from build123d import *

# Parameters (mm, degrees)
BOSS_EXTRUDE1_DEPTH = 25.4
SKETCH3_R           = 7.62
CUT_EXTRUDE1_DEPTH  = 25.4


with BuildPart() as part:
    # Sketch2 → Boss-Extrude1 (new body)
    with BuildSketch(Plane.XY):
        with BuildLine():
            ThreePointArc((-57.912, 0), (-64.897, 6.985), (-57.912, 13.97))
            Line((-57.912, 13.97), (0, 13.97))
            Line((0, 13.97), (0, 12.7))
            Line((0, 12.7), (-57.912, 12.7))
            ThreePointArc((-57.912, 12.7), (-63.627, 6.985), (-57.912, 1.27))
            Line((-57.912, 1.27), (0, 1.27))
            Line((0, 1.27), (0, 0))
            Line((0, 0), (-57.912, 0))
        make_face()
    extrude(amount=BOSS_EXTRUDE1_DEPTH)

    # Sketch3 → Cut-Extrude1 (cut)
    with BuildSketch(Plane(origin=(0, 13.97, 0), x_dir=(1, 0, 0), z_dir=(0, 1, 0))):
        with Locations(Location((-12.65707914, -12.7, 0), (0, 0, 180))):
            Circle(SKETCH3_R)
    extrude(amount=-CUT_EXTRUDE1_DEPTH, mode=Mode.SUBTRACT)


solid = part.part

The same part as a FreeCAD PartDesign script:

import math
import FreeCAD as App
import Part
import Sketcher

V = App.Vector
Q = App.Units.Quantity

doc = App.newDocument("Part")
params = doc.addObject("Spreadsheet::Sheet", "Params")
for row, (alias, value) in enumerate([
    ("sketch1_radius", "0.275 in"),
    ("sketch1_radius2", "0.225 in"),
    ("sketch1_width", "2.28 in"),
    ("pad1_length", "1 in"),
    ("sketch2_diameter", "0.6 in"),
    ("pocket1_length", "1 in"),
], start=1):
    params.set(f"A{row}", alias)
    params.set(f"B{row}", "=" + value)
    params.setAlias(f"B{row}", alias)

body = doc.addObject("PartDesign::Body", "Body")

sketch1 = body.newObject("Sketcher::SketchObject", "Sketch")
sketch1.AttachmentSupport = (doc.getObject("XY_Plane"), [""])
sketch1.MapMode = "FlatFace"
sketch1.addGeometry([
    Part.ArcOfCircle(Part.Circle(V(-57.9, 7, 0), V(0, 0, 1), 7), math.radians(90), math.radians(270)),
    Part.LineSegment(V(-57.9, 0, 0), V(0, 0, 0)),
    Part.LineSegment(V(0, 0, 0), V(0, 1.3, 0)),
    Part.LineSegment(V(0, 1.3, 0), V(-57.9, 1.3, 0)),
    Part.ArcOfCircle(Part.Circle(V(-57.9, 7, 0), V(0, 0, 1), 5.7), math.radians(90), math.radians(270)),
    Part.LineSegment(V(-57.9, 12.7, 0), V(0, 12.7, 0)),
    Part.LineSegment(V(0, 12.7, 0), V(0, 14, 0)),
    Part.LineSegment(V(0, 14, 0), V(-57.9, 14, 0)),
], False)
sketch1.addConstraint([
    Sketcher.Constraint("Tangent", 0, 2, 1, 1),
    Sketcher.Constraint("Coincident", 1, 2, 2, 1),
    Sketcher.Constraint("Coincident", 2, 2, 3, 1),
    Sketcher.Constraint("Tangent", 3, 2, 4, 2),
    Sketcher.Constraint("Tangent", 4, 1, 5, 1),
    Sketcher.Constraint("Coincident", 5, 2, 6, 1),
    Sketcher.Constraint("Coincident", 6, 2, 7, 1),
    Sketcher.Constraint("Tangent", 7, 2, 0, 1),
    Sketcher.Constraint("Horizontal", 1),
    Sketcher.Constraint("Vertical", 2),
    Sketcher.Constraint("Horizontal", 3),
    Sketcher.Constraint("Horizontal", 5),
    Sketcher.Constraint("Vertical", 6),
    Sketcher.Constraint("Horizontal", 7),
    Sketcher.Constraint("Coincident", 1, 2, -1, 1),
    Sketcher.Constraint("Coincident", 4, 3, 0, 3),
    Sketcher.Constraint("PointOnObject", 5, 2, -2),
    Sketcher.Constraint("Radius", 0, Q("0.275 in")),
    Sketcher.Constraint("Radius", 4, Q("0.225 in")),
    Sketcher.Constraint("DistanceX", 1, 1, 1, 2, Q("2.28 in")),
])
sketch1.setExpression("Constraints[17]", "Params.sketch1_radius")
sketch1.setExpression("Constraints[18]", "Params.sketch1_radius2")
sketch1.setExpression("Constraints[19]", "Params.sketch1_width")
pad1 = body.newObject("PartDesign::Pad", "Pad")
pad1.Profile = sketch1
pad1.setExpression("Length", "Params.pad1_length")

sketch2 = body.newObject("Sketcher::SketchObject", "Sketch001")
sketch2.AttachmentSupport = (doc.getObject("XZ_Plane"), [""])
sketch2.MapMode = "FlatFace"
sketch2.AttachmentOffset = App.Placement(V(0, 0, -0.55 * 25.4), App.Rotation())
sketch2.addGeometry(Part.Circle(V(-13, 13, 0), V(0, 0, 1), 8), False)
sketch2.addConstraint([
    Sketcher.Constraint("Diameter", 0, Q("0.6 in")),
    Sketcher.Constraint("DistanceY", -1, 1, 0, 3, Q("0.5 in")),
    Sketcher.Constraint("DistanceX", 0, 3, -1, 1, Q("12.657079 mm")),
])
sketch2.setExpression("Constraints[0]", "Params.sketch2_diameter")
pocket1 = body.newObject("PartDesign::Pocket", "Pocket")
pocket1.Profile = sketch2
pocket1.setExpression("Length", "Params.pocket1_length")
pocket1.Reversed = True

doc.recompute()
